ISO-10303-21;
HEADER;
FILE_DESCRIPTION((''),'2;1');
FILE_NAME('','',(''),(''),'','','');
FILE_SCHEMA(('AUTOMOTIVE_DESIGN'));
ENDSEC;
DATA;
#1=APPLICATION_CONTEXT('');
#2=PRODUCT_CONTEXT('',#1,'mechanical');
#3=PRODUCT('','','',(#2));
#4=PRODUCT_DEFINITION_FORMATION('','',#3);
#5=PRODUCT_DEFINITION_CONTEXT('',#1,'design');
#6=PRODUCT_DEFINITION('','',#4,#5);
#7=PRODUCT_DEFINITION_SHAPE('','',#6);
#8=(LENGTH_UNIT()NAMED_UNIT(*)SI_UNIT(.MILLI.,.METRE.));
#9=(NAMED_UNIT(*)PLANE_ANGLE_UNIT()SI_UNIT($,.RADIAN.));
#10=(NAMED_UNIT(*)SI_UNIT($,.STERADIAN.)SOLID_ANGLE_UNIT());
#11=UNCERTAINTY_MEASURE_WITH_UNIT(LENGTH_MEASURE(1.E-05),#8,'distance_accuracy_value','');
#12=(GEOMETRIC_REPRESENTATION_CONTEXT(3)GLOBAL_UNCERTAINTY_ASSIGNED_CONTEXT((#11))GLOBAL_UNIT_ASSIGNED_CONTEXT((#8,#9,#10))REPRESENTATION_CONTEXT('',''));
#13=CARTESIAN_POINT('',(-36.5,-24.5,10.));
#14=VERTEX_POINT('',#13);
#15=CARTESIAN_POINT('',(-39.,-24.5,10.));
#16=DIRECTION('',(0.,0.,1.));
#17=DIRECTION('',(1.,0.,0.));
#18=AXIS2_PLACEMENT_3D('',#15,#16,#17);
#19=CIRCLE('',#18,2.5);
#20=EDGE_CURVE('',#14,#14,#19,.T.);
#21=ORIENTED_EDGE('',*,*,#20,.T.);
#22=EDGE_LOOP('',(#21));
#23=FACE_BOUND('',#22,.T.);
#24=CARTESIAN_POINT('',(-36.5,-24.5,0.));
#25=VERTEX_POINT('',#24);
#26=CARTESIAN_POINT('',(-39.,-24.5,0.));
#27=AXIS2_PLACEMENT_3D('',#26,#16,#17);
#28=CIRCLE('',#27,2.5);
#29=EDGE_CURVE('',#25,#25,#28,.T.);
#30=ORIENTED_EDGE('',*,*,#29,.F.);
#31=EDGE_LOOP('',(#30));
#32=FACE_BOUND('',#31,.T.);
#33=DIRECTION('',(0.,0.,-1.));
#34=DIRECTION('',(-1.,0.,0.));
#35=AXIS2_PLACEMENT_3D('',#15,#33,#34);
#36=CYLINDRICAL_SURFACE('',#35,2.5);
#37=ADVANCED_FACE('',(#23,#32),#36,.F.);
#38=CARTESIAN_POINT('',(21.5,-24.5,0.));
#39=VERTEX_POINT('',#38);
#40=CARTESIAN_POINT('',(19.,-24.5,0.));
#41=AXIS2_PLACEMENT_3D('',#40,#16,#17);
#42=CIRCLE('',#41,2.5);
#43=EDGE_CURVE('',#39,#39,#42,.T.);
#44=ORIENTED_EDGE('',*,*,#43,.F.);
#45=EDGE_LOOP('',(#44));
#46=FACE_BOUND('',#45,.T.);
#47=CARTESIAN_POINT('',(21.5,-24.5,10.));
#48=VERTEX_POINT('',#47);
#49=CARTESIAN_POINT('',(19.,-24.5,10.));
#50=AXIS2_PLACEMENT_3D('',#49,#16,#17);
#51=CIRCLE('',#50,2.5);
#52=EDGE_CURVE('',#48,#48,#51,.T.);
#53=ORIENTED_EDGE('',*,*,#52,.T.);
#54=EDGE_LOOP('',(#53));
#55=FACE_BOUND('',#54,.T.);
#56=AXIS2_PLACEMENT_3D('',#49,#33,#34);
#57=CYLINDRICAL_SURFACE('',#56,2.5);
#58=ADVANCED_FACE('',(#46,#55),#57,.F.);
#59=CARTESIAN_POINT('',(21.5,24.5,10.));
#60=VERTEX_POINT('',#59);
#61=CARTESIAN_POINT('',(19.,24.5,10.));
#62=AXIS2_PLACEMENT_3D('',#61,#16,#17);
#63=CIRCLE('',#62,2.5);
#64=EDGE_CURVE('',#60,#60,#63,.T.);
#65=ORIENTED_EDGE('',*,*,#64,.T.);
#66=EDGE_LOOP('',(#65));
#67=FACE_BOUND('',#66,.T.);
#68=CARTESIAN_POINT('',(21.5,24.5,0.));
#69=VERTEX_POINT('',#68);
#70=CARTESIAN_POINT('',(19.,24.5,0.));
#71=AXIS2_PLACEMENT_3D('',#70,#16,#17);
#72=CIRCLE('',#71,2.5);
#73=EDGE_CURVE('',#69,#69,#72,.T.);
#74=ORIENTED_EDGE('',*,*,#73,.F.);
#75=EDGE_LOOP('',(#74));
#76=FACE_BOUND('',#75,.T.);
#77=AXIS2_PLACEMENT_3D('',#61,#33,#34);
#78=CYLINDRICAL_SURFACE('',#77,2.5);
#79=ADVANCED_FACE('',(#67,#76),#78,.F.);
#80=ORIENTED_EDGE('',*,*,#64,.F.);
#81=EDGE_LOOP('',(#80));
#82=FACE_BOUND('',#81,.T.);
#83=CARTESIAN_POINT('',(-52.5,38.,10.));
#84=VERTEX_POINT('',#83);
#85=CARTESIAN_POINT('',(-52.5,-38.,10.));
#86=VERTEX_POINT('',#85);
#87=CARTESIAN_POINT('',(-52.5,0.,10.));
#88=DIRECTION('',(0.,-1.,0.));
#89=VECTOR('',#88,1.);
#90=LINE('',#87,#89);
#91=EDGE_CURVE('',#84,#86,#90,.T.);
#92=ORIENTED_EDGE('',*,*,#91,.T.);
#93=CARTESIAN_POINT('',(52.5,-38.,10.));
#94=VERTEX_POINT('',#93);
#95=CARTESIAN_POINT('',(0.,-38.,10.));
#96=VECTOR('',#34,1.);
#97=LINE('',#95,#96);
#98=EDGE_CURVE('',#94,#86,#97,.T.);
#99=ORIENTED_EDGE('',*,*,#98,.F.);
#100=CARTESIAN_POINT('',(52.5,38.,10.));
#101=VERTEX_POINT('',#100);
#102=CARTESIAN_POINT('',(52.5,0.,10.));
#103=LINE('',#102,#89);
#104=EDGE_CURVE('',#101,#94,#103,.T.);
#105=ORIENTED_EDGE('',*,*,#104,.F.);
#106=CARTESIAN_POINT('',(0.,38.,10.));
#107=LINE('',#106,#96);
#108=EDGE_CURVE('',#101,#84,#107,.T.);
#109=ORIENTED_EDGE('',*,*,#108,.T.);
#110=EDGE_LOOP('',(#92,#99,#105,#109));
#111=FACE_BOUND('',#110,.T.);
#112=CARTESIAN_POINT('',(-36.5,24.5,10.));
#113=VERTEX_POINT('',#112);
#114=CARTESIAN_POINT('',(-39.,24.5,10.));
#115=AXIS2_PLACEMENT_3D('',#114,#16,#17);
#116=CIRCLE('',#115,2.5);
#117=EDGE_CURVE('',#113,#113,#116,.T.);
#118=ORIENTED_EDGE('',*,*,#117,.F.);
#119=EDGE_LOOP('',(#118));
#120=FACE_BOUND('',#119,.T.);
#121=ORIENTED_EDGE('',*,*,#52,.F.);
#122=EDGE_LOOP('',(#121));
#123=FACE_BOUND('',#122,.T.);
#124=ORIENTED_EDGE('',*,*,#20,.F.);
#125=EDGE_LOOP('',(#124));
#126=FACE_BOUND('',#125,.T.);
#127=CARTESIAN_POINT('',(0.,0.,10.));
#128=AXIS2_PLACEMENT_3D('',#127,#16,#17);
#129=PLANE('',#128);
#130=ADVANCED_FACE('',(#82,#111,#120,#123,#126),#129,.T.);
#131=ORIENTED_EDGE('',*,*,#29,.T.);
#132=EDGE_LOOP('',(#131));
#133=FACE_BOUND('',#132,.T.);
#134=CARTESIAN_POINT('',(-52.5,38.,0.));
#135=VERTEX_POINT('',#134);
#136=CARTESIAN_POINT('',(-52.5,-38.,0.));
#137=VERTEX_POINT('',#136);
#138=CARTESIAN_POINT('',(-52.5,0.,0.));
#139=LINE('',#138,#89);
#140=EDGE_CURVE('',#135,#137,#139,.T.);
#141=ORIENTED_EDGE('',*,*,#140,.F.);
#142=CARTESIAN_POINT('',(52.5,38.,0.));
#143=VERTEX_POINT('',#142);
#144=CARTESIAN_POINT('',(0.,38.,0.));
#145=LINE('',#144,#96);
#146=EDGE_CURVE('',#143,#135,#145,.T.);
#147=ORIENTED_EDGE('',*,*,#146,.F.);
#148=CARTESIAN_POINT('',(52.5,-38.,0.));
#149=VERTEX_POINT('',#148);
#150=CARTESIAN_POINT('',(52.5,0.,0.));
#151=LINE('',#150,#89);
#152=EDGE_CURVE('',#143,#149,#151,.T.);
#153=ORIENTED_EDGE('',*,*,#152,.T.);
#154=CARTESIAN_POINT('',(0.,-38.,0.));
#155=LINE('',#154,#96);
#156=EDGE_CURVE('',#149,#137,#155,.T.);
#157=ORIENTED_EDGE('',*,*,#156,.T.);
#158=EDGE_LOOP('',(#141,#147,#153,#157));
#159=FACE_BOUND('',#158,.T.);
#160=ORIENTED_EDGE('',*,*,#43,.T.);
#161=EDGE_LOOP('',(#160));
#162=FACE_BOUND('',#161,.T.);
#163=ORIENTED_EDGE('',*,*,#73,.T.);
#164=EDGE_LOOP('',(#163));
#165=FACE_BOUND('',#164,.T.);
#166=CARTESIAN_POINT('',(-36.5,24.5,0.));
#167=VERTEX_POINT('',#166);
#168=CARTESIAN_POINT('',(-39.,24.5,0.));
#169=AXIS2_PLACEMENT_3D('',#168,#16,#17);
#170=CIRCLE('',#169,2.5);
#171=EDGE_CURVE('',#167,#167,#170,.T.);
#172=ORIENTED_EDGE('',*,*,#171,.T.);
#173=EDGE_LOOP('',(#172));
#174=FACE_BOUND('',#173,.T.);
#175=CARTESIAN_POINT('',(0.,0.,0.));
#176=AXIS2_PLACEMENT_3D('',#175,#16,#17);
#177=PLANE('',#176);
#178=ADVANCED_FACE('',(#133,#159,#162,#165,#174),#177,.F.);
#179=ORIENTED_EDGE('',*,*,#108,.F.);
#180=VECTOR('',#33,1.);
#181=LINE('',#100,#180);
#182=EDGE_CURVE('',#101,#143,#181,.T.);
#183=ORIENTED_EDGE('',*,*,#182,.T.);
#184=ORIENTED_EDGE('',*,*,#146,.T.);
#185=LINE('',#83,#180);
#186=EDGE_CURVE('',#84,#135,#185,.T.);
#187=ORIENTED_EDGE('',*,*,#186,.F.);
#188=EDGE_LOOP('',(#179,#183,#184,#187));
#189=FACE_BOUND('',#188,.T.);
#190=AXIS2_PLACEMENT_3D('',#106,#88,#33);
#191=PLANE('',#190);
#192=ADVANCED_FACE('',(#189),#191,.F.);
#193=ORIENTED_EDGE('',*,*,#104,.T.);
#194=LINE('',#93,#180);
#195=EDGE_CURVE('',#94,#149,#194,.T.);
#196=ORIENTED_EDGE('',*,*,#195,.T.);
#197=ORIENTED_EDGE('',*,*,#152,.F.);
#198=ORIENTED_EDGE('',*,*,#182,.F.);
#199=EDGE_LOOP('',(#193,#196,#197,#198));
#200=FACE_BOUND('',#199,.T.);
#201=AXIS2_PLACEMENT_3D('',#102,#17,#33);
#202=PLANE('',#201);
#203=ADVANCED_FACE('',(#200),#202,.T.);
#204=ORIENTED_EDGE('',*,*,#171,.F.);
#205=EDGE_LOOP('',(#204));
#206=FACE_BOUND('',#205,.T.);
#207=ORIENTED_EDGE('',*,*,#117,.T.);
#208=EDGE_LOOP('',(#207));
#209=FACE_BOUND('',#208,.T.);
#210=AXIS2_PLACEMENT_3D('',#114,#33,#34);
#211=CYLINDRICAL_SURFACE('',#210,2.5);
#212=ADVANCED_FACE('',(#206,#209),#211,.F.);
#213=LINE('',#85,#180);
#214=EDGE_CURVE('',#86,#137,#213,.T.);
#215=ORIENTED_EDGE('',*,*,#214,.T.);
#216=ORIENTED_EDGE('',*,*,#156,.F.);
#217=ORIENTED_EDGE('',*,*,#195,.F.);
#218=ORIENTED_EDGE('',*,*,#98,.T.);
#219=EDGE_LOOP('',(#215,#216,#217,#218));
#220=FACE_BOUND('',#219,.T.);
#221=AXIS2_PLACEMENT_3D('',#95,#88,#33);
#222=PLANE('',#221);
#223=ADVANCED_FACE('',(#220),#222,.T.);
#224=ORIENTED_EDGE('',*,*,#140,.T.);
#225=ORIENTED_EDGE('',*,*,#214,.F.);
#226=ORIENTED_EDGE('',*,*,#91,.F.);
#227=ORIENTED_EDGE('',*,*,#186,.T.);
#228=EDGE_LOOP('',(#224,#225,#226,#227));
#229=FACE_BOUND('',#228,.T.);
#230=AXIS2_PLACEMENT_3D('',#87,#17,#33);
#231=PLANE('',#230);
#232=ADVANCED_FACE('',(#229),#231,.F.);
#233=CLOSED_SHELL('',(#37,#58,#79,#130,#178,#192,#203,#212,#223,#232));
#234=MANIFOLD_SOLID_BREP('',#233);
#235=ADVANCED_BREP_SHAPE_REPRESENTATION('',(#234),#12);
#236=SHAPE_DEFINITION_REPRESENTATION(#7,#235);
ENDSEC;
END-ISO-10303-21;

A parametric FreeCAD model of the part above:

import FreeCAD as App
import Part
import Sketcher


def add_polygon(sketch, points):
    """Adds a closed chain of lines whose ends are joined by coincident constraints."""
    first, n = sketch.GeometryCount, len(points)
    for a, b in zip(points, points[1:] + points[:1]):
        sketch.addGeometry(Part.LineSegment(App.Vector(*a, 0), App.Vector(*b, 0)), False)
    for i in range(n):
        sketch.addConstraint(Sketcher.Constraint("Coincident", first + i, 2, first + (i + 1) % n, 1))

doc = App.newDocument("Part")
body = doc.addObject("PartDesign::Body", "Body")

sketch1 = doc.addObject("Sketcher::SketchObject", "Sketch")
body.addObject(sketch1)
sketch1.AttachmentSupport = (doc.XY_Plane, [""])
sketch1.MapMode = "FlatFace"
add_polygon(sketch1, [(-52.5, 38), (-52.5, -38), (52.5, -38), (52.5, 38)])
sketch1.addGeometry(Part.Circle(App.Vector(-39, -24.5, 0), App.Vector(0, 0, 1), 2.5), False)
sketch1.addGeometry(Part.Circle(App.Vector(19, -24.5, 0), App.Vector(0, 0, 1), 2.5), False)
sketch1.addGeometry(Part.Circle(App.Vector(-39, 24.5, 0), App.Vector(0, 0, 1), 2.5), False)
sketch1.addGeometry(Part.Circle(App.Vector(19, 24.5, 0), App.Vector(0, 0, 1), 2.5), False)
sketch1.addConstraint([
    Sketcher.Constraint("Vertical", 0),
    Sketcher.Constraint("Horizontal", 1),
    Sketcher.Constraint("Vertical", 2),
    Sketcher.Constraint("Horizontal", 3),
    Sketcher.Constraint("Equal", 4, 5),
    Sketcher.Constraint("Equal", 5, 6),
    Sketcher.Constraint("Equal", 6, 7),
    Sketcher.Constraint("Symmetric", 0, 2, 2, 2, -1, 1),
    Sketcher.Constraint("Symmetric", 4, 3, 6, 3, -1),
    Sketcher.Constraint("Symmetric", 5, 3, 7, 3, -1),
    Sketcher.Constraint("Horizontal", 4, 3, 5, 3),
    Sketcher.Constraint("Diameter", 4, 5.0),
    Sketcher.Constraint("DistanceX", 1, 1, 1, 2, 105.0),
    Sketcher.Constraint("DistanceY", 0, 2, 0, 1, 76.0),
    Sketcher.Constraint("DistanceX", 4, 3, -1, 1, 39.0),
    Sketcher.Constraint("DistanceX", -1, 1, 5, 3, 19.0),
    Sketcher.Constraint("DistanceY", 4, 3, 6, 3, 49.0),
])
pad1 = doc.addObject("PartDesign::Pad", "Pad")
body.addObject(pad1)
pad1.Profile = sketch1
pad1.Length = 10

doc.recompute()
